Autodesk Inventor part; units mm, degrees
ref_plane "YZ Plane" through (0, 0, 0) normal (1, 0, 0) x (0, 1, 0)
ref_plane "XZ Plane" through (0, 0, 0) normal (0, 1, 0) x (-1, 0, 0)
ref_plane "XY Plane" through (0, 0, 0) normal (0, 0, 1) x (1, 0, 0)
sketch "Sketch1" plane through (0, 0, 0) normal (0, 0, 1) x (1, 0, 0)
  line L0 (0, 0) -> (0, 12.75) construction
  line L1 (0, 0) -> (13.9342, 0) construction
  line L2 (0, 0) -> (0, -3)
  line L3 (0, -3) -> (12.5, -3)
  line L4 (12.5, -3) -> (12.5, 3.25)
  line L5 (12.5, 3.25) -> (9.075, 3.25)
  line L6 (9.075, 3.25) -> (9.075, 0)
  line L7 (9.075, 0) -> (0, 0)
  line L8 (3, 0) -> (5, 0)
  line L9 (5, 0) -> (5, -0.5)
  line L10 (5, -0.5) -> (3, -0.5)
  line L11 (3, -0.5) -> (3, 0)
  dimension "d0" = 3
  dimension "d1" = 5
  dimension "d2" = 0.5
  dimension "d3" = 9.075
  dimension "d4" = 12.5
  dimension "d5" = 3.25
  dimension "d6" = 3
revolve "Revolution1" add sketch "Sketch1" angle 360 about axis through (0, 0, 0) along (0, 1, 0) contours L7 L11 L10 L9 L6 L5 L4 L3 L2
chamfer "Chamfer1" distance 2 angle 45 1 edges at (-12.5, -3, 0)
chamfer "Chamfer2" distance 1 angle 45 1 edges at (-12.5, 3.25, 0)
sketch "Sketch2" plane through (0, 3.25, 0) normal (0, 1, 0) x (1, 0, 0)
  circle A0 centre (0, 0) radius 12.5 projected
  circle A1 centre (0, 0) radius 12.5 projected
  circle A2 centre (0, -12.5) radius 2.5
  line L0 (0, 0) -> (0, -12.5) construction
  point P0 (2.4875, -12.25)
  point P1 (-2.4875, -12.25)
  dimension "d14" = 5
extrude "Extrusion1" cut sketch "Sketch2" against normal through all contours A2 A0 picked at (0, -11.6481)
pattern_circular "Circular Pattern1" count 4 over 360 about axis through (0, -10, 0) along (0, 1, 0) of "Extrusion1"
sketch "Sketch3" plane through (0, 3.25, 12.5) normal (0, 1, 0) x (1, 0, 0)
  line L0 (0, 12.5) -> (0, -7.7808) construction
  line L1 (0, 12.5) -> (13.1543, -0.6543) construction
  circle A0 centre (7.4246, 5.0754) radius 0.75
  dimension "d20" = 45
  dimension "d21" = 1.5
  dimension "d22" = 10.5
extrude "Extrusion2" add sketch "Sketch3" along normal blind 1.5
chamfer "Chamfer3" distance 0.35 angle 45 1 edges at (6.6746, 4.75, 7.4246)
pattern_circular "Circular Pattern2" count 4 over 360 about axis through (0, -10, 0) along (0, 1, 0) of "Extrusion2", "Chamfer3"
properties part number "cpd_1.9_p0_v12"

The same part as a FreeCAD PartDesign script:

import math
import FreeCAD as App
import Part
import Sketcher
from FreeCAD import Vector
Q = App.Units.Quantity


def edges_at(feature, points):
    """Names of the edges that pass closest to the given points."""
    edges = feature.Shape.Edges
    near = lambda p: min(range(len(edges)), key=lambda i: edges[i].distToShape(Part.Vertex(*p))[0])
    return sorted({f"Edge{near(p) + 1}" for p in points})


def add_polygon(sketch, points):
    """Adds a closed chain of lines whose ends are joined by coincident constraints."""
    first, n = sketch.GeometryCount, len(points)
    for a, b in zip(points, points[1:] + points[:1]):
        sketch.addGeometry(Part.LineSegment(App.Vector(*a, 0), App.Vector(*b, 0)), False)
    for i in range(n):
        sketch.addConstraint(Sketcher.Constraint("Coincident", first + i, 2, first + (i + 1) % n, 1))

doc = App.newDocument("Part")
body = doc.addObject("PartDesign::Body", "Body")

sketch1 = body.newObject("Sketcher::SketchObject", "Sketch")
sketch1.AttachmentSupport = (doc.getObject("XY_Plane"), [""])
sketch1.MapMode = "FlatFace"
add_polygon(sketch1, [(3, 0), (0, 0), (0, -3), (12.5, -3), (12.5, 3.25), (9.075, 3.25), (9.075, 0), (5, 0), (5, -0.5), (3, -0.5)])
sketch1.addConstraint(Sketcher.Constraint("Horizontal", 0))
sketch1.addConstraint(Sketcher.Constraint("Vertical", 1))
sketch1.addConstraint(Sketcher.Constraint("Horizontal", 2))
sketch1.addConstraint(Sketcher.Constraint("Vertical", 3))
sketch1.addConstraint(Sketcher.Constraint("Horizontal", 4))
sketch1.addConstraint(Sketcher.Constraint("Vertical", 5))
sketch1.addConstraint(Sketcher.Constraint("Horizontal", 6))
sketch1.addConstraint(Sketcher.Constraint("Vertical", 7))
sketch1.addConstraint(Sketcher.Constraint("Horizontal", 8))
sketch1.addConstraint(Sketcher.Constraint("Vertical", 9))
sketch1.addConstraint(Sketcher.Constraint("Coincident", 0, 2, -1, 1))
sketch1.addConstraint(Sketcher.Constraint("PointOnObject", 5, 2, -1))
sketch1.addConstraint(Sketcher.Constraint("Equal", 0, 1))
sketch1.addConstraint(Sketcher.Constraint("DistanceX", 0, 2, 0, 1, Q("3 mm")))
sketch1.addConstraint(Sketcher.Constraint("DistanceX", 2, 1, 2, 2, Q("12.5 mm")))
sketch1.addConstraint(Sketcher.Constraint("DistanceY", 7, 2, 7, 1, Q("0.5 mm")))
sketch1.addConstraint(Sketcher.Constraint("DistanceX", -1, 1, 6, 2, Q("5 mm")))
sketch1.addConstraint(Sketcher.Constraint("DistanceY", 5, 2, 5, 1, Q("3.25 mm")))
sketch1.addConstraint(Sketcher.Constraint("DistanceX", -1, 1, 4, 2, Q("9.075 mm")))
revolution = body.newObject("PartDesign::Revolution", "Revolution")
revolution.Profile = sketch1
revolution.ReferenceAxis = (sketch1, ["V_Axis"])
revolution.Angle = 360
doc.recompute()

chamfer = body.newObject("PartDesign::Chamfer", "Chamfer")
chamfer.Base = (revolution, edges_at(revolution, [(-12.5, -3, 0)]))
chamfer.Size = 2
doc.recompute()

chamfer2 = body.newObject("PartDesign::Chamfer", "Chamfer001")
chamfer2.Base = (chamfer, edges_at(chamfer, [(-12.5, 3.25, 0)]))
chamfer2.Size = 1

sketch2 = body.newObject("Sketcher::SketchObject", "Sketch001")
sketch2.AttachmentSupport = (doc.getObject("XZ_Plane"), [""])
sketch2.MapMode = "FlatFace"
sketch2.AttachmentOffset = App.Placement(Vector(0, 0, -3.25), App.Rotation())
sketch2.addGeometry(Part.ArcOfCircle(Part.Circle(Vector(0, 12.5, 0), Vector(0, 0, 1), 2.5), math.radians(-174.26083), math.radians(-5.73917)), False)
sketch2.addGeometry(Part.ArcOfCircle(Part.Circle(Vector(0, 0, 0), Vector(0, 0, 1), 12.5), math.radians(78.521659), math.radians(101.478341)), False)
sketch2.addConstraint(Sketcher.Constraint("Coincident", 0, 1, 1, 2))
sketch2.addConstraint(Sketcher.Constraint("Coincident", 1, 1, 0, 2))
sketch2.addConstraint(Sketcher.Constraint("Coincident", 1, 3, -1, 1))
sketch2.addConstraint(Sketcher.Constraint("PointOnObject", 0, 3, -2))
sketch2.addConstraint(Sketcher.Constraint("Radius", 0, Q("2.5 mm")))
sketch2.addConstraint(Sketcher.Constraint("Radius", 1, Q("12.5 mm")))
sketch2.addConstraint(Sketcher.Constraint("DistanceY", -1, 1, 0, 3, Q("12.5 mm")))
pocket1 = body.newObject("PartDesign::Pocket", "Pocket")
pocket1.Profile = sketch2
pocket1.Type = "ThroughAll"
pocket1.Reversed = True
doc.recompute()

polarpattern = body.newObject("PartDesign::PolarPattern", "PolarPattern")
polarpattern.Originals = [pocket1]
polarpattern.Axis = (doc.getObject("Y_Axis"), [""])
polarpattern.Angle = 360
polarpattern.Occurrences = 4
body.Tip = polarpattern

sketch3 = body.newObject("Sketcher::SketchObject", "Sketch002")
sketch3.AttachmentSupport = (doc.getObject("XZ_Plane"), [""])
sketch3.MapMode = "FlatFace"
sketch3.AttachmentOffset = App.Placement(Vector(0, 0, -3.25), App.Rotation())
sketch3.addGeometry(Part.Circle(Vector(7.4246, 7.4246, 0), Vector(0, 0, 1), 0.75), False)
sketch3.addConstraint(Sketcher.Constraint("Diameter", 0, Q("1.5 mm")))
sketch3.addConstraint(Sketcher.Constraint("DistanceX", -1, 1, 0, 3, Q("7.4246 mm")))
sketch3.addConstraint(Sketcher.Constraint("DistanceY", -1, 1, 0, 3, Q("7.4246 mm")))
pad1 = body.newObject("PartDesign::Pad", "Pad")
pad1.Profile = sketch3
pad1.Length = 1.5
pad1.Reversed = True
doc.recompute()

chamfer3 = body.newObject("PartDesign::Chamfer", "Chamfer002")
chamfer3.Base = (pad1, edges_at(pad1, [(6.675, 4.75, 7.425)]))
chamfer3.Size = 0.35
doc.recompute()

polarpattern2 = body.newObject("PartDesign::PolarPattern", "PolarPattern001")
polarpattern2.Originals = [pad1, chamfer3]
polarpattern2.Axis = (doc.getObject("Y_Axis"), [""])
polarpattern2.Angle = 360
polarpattern2.Occurrences = 4
body.Tip = polarpattern2

doc.recompute()
